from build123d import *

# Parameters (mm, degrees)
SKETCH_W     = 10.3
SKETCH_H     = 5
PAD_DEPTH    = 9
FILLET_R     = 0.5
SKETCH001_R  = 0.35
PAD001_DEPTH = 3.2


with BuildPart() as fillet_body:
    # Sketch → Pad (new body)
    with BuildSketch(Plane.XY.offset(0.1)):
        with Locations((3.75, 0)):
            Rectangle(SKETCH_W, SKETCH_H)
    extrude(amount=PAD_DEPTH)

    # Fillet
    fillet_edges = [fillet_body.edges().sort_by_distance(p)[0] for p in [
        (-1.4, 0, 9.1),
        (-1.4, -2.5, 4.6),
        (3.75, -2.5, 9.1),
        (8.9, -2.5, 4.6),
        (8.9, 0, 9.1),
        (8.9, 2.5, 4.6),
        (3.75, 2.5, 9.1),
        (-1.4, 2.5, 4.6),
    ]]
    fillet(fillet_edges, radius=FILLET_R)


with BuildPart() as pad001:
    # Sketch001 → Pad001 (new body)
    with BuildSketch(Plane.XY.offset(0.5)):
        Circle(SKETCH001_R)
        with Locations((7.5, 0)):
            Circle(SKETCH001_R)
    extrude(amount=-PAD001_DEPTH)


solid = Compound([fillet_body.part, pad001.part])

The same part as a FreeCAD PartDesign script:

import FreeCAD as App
import Part
import Sketcher
Q = App.Units.Quantity


def edges_at(feature, points):
    """Names of the edges that pass closest to the given points."""
    edges = feature.Shape.Edges
    near = lambda p: min(range(len(edges)), key=lambda i: edges[i].distToShape(Part.Vertex(*p))[0])
    return sorted({f"Edge{near(p) + 1}" for p in points})


def add_polygon(sketch, points):
    """Adds a closed chain of lines whose ends are joined by coincident constraints."""
    first, n = sketch.GeometryCount, len(points)
    for a, b in zip(points, points[1:] + points[:1]):
        sketch.addGeometry(Part.LineSegment(App.Vector(*a, 0), App.Vector(*b, 0)), False)
    for i in range(n):
        sketch.addConstraint(Sketcher.Constraint("Coincident", first + i, 2, first + (i + 1) % n, 1))

doc = App.newDocument("Part")
body = doc.addObject("PartDesign::Body", "Body")

sketch1 = body.newObject("Sketcher::SketchObject", "Sketch")
sketch1.AttachmentSupport = (doc.getObject("XY_Plane"), [""])
sketch1.MapMode = "FlatFace"
sketch1.AttachmentOffset = App.Placement(App.Vector(0, 0, 0.1), App.Rotation())
add_polygon(sketch1, [(-1.4, 2.5), (-1.4, -2.5), (8.9, -2.5), (8.9, 2.5)])
sketch1.addConstraint([
    Sketcher.Constraint("Vertical", 0),
    Sketcher.Constraint("Horizontal", 1),
    Sketcher.Constraint("Vertical", 2),
    Sketcher.Constraint("Horizontal", 3),
    Sketcher.Constraint("DistanceY", 0, 2, 0, 1, Q("5 mm")),
    Sketcher.Constraint("DistanceX", 1, 1, 1, 2, Q("10.3 mm")),
    Sketcher.Constraint("DistanceX", 0, 2, -1, 1, Q("1.4 mm")),
    Sketcher.Constraint("DistanceY", 0, 2, -1, 1, Q("2.5 mm")),
])
pad1 = body.newObject("PartDesign::Pad", "Pad")
pad1.Profile = sketch1
pad1.Length = 9
doc.recompute()

fillet = body.newObject("PartDesign::Fillet", "Fillet")
fillet.Base = (pad1, edges_at(pad1, [
    (-1.4, 0, 9.1),
    (-1.4, -2.5, 4.6),
    (3.75, -2.5, 9.1),
    (8.9, -2.5, 4.6),
    (8.9, 0, 9.1),
    (8.9, 2.5, 4.6),
    (3.75, 2.5, 9.1),
    (-1.4, 2.5, 4.6),
]))
fillet.Radius = 0.5
body2 = doc.addObject("PartDesign::Body", "Body001")
body2.AllowCompound = True

sketch2 = body2.newObject("Sketcher::SketchObject", "Sketch001")
sketch2.AttachmentSupport = (doc.getObject("XY_Plane001"), [""])
sketch2.MapMode = "FlatFace"
sketch2.AttachmentOffset = App.Placement(App.Vector(0, 0, 0.5), App.Rotation())
sketch2.addGeometry([
    Part.Circle(App.Vector(0, 0, 0), App.Vector(0, 0, 1), 0.35),
    Part.Circle(App.Vector(7.5, 0, 0), App.Vector(0, 0, 1), 0.35),
], False)
sketch2.addConstraint([
    Sketcher.Constraint("Coincident", 0, 3, -1, 1),
    Sketcher.Constraint("Equal", 0, 1),
    Sketcher.Constraint("PointOnObject", 1, 3, -1),
    Sketcher.Constraint("Diameter", 0, Q("0.7 mm")),
    Sketcher.Constraint("DistanceX", -1, 1, 1, 3, Q("7.5 mm")),
])
pad2 = body2.newObject("PartDesign::Pad", "Pad001")
pad2.Profile = sketch2
pad2.Length = 3.2
pad2.Reversed = True

doc.recompute()
